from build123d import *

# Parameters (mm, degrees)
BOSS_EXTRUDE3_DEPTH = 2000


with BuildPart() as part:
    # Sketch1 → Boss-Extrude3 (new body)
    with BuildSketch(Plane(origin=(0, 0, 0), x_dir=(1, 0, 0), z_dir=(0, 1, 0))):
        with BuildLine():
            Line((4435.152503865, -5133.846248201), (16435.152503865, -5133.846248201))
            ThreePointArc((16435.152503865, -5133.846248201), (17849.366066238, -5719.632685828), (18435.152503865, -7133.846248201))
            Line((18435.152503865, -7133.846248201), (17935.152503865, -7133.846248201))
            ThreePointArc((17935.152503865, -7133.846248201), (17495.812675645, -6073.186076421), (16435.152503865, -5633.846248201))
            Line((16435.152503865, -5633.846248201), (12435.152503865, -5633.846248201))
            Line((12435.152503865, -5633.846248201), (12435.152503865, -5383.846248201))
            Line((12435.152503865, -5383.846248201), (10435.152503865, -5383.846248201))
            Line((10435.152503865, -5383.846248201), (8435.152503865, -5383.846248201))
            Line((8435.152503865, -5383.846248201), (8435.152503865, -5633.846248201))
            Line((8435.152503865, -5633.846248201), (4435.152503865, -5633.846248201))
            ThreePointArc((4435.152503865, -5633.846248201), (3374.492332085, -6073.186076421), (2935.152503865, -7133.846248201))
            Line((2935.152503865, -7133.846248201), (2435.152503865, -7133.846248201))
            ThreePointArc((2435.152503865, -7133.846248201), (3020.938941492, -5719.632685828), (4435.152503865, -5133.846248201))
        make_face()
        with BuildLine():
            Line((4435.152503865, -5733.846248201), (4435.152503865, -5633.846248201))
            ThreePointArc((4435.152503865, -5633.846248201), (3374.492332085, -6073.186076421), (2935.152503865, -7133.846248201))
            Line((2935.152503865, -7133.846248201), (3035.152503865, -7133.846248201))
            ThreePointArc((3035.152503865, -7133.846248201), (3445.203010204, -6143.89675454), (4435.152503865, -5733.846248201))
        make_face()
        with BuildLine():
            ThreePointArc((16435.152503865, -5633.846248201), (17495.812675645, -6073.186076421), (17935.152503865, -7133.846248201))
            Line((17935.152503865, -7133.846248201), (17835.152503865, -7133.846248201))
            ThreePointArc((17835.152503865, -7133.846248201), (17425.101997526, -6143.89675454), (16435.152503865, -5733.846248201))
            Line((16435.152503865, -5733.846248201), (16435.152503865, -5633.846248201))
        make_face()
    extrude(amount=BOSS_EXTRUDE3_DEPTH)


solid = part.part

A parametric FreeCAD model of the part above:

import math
import FreeCAD as App
import Part
import Sketcher
from FreeCAD import Vector
Q = App.Units.Quantity

doc = App.newDocument("Part")
body = doc.addObject("PartDesign::Body", "Body")

sketch1 = body.newObject("Sketcher::SketchObject", "Sketch")
sketch1.AttachmentSupport = (doc.getObject("XZ_Plane"), [""])
sketch1.MapMode = "FlatFace"
sketch1.addGeometry(Part.LineSegment(Vector(16435, 5134, 0), Vector(4435, 5134, 0)), False)
sketch1.addGeometry(Part.ArcOfCircle(Part.Circle(Vector(4435, 7134, 0), Vector(0, 0, 1), 2000), math.radians(180), math.radians(270)), False)
sketch1.addGeometry(Part.LineSegment(Vector(2435, 7134, 0), Vector(3035, 7134, 0)), False)
sketch1.addGeometry(Part.ArcOfCircle(Part.Circle(Vector(4435, 7134, 0), Vector(0, 0, 1), 1400), math.radians(-180), math.radians(-90)), False)
sketch1.addGeometry(Part.LineSegment(Vector(4435, 5734, 0), Vector(4435, 5634, 0)), False)
sketch1.addGeometry(Part.LineSegment(Vector(4435, 5634, 0), Vector(8435, 5634, 0)), False)
sketch1.addGeometry(Part.LineSegment(Vector(8435, 5634, 0), Vector(8435, 5384, 0)), False)
sketch1.addGeometry(Part.LineSegment(Vector(8435, 5384, 0), Vector(12435, 5384, 0)), False)
sketch1.addGeometry(Part.LineSegment(Vector(12435, 5384, 0), Vector(12435, 5634, 0)), False)
sketch1.addGeometry(Part.LineSegment(Vector(12435, 5634, 0), Vector(16435, 5634, 0)), False)
sketch1.addGeometry(Part.LineSegment(Vector(16435, 5634, 0), Vector(16435, 5734, 0)), False)
sketch1.addGeometry(Part.ArcOfCircle(Part.Circle(Vector(16435, 7134, 0), Vector(0, 0, 1), 1400), math.radians(-90), math.radians(0)), False)
sketch1.addGeometry(Part.LineSegment(Vector(17835, 7134, 0), Vector(18435, 7134, 0)), False)
sketch1.addGeometry(Part.ArcOfCircle(Part.Circle(Vector(16435, 7134, 0), Vector(0, 0, 1), 2000), math.radians(-90), math.radians(0)), False)
sketch1.addConstraint(Sketcher.Constraint("Coincident", 0, 2, 1, 2))
sketch1.addConstraint(Sketcher.Constraint("Coincident", 1, 1, 2, 1))
sketch1.addConstraint(Sketcher.Constraint("Coincident", 2, 2, 3, 1))
sketch1.addConstraint(Sketcher.Constraint("Coincident", 3, 2, 4, 1))
sketch1.addConstraint(Sketcher.Constraint("Coincident", 4, 2, 5, 1))
sketch1.addConstraint(Sketcher.Constraint("Coincident", 5, 2, 6, 1))
sketch1.addConstraint(Sketcher.Constraint("Coincident", 6, 2, 7, 1))
sketch1.addConstraint(Sketcher.Constraint("Coincident", 7, 2, 8, 1))
sketch1.addConstraint(Sketcher.Constraint("Coincident", 8, 2, 9, 1))
sketch1.addConstraint(Sketcher.Constraint("Coincident", 9, 2, 10, 1))
sketch1.addConstraint(Sketcher.Constraint("Coincident", 10, 2, 11, 1))
sketch1.addConstraint(Sketcher.Constraint("Coincident", 11, 2, 12, 1))
sketch1.addConstraint(Sketcher.Constraint("Coincident", 12, 2, 13, 2))
sketch1.addConstraint(Sketcher.Constraint("Coincident", 13, 1, 0, 1))
sketch1.addConstraint(Sketcher.Constraint("Horizontal", 0))
sketch1.addConstraint(Sketcher.Constraint("Horizontal", 2))
sketch1.addConstraint(Sketcher.Constraint("Vertical", 4))
sketch1.addConstraint(Sketcher.Constraint("Horizontal", 5))
sketch1.addConstraint(Sketcher.Constraint("Vertical", 6))
sketch1.addConstraint(Sketcher.Constraint("Horizontal", 7))
sketch1.addConstraint(Sketcher.Constraint("Vertical", 8))
sketch1.addConstraint(Sketcher.Constraint("Horizontal", 9))
sketch1.addConstraint(Sketcher.Constraint("Vertical", 10))
sketch1.addConstraint(Sketcher.Constraint("Horizontal", 12))
sketch1.addConstraint(Sketcher.Constraint("Coincident", 3, 3, 1, 3))
sketch1.addConstraint(Sketcher.Constraint("Coincident", 13, 3, 11, 3))
sketch1.addConstraint(Sketcher.Constraint("Equal", 3, 11))
sketch1.addConstraint(Sketcher.Constraint("Equal", 1, 13))
sketch1.addConstraint(Sketcher.Constraint("Horizontal", 5, 2, 8, 2))
sketch1.addConstraint(Sketcher.Constraint("Vertical", 3, 3, 0, 2))
sketch1.addConstraint(Sketcher.Constraint("Vertical", 13, 3, 9, 2))
sketch1.addConstraint(Sketcher.Constraint("Equal", 5, 7))
sketch1.addConstraint(Sketcher.Constraint("Equal", 7, 9))
sketch1.addConstraint(Sketcher.Constraint("Radius", 1, Q("2000 mm")))
sketch1.addConstraint(Sketcher.Constraint("Radius", 3, Q("1400 mm")))
sketch1.addConstraint(Sketcher.Constraint("DistanceX", 0, 2, 0, 1, Q("12000 mm")))
sketch1.addConstraint(Sketcher.Constraint("DistanceX", 5, 1, 5, 2, Q("4000 mm")))
sketch1.addConstraint(Sketcher.Constraint("DistanceY", 4, 2, 4, 1, Q("100 mm")))
sketch1.addConstraint(Sketcher.Constraint("DistanceY", 6, 2, 6, 1, Q("250 mm")))
sketch1.addConstraint(Sketcher.Constraint("DistanceX", 3, 3, 11, 3, Q("12000 mm")))
sketch1.addConstraint(Sketcher.Constraint("DistanceY", 0, 2, 2, 2, Q("2000 mm")))
sketch1.addConstraint(Sketcher.Constraint("DistanceY", 10, 2, 12, 2, Q("1400 mm")))
sketch1.addConstraint(Sketcher.Constraint("DistanceY", -1, 1, 1, 3, Q("7133.846248 mm")))
sketch1.addConstraint(Sketcher.Constraint("DistanceX", -1, 1, 1, 3, Q("4435.152504 mm")))
pad1 = body.newObject("PartDesign::Pad", "Pad")
pad1.Profile = sketch1
pad1.Length = 2000
pad1.Reversed = True

doc.recompute()
